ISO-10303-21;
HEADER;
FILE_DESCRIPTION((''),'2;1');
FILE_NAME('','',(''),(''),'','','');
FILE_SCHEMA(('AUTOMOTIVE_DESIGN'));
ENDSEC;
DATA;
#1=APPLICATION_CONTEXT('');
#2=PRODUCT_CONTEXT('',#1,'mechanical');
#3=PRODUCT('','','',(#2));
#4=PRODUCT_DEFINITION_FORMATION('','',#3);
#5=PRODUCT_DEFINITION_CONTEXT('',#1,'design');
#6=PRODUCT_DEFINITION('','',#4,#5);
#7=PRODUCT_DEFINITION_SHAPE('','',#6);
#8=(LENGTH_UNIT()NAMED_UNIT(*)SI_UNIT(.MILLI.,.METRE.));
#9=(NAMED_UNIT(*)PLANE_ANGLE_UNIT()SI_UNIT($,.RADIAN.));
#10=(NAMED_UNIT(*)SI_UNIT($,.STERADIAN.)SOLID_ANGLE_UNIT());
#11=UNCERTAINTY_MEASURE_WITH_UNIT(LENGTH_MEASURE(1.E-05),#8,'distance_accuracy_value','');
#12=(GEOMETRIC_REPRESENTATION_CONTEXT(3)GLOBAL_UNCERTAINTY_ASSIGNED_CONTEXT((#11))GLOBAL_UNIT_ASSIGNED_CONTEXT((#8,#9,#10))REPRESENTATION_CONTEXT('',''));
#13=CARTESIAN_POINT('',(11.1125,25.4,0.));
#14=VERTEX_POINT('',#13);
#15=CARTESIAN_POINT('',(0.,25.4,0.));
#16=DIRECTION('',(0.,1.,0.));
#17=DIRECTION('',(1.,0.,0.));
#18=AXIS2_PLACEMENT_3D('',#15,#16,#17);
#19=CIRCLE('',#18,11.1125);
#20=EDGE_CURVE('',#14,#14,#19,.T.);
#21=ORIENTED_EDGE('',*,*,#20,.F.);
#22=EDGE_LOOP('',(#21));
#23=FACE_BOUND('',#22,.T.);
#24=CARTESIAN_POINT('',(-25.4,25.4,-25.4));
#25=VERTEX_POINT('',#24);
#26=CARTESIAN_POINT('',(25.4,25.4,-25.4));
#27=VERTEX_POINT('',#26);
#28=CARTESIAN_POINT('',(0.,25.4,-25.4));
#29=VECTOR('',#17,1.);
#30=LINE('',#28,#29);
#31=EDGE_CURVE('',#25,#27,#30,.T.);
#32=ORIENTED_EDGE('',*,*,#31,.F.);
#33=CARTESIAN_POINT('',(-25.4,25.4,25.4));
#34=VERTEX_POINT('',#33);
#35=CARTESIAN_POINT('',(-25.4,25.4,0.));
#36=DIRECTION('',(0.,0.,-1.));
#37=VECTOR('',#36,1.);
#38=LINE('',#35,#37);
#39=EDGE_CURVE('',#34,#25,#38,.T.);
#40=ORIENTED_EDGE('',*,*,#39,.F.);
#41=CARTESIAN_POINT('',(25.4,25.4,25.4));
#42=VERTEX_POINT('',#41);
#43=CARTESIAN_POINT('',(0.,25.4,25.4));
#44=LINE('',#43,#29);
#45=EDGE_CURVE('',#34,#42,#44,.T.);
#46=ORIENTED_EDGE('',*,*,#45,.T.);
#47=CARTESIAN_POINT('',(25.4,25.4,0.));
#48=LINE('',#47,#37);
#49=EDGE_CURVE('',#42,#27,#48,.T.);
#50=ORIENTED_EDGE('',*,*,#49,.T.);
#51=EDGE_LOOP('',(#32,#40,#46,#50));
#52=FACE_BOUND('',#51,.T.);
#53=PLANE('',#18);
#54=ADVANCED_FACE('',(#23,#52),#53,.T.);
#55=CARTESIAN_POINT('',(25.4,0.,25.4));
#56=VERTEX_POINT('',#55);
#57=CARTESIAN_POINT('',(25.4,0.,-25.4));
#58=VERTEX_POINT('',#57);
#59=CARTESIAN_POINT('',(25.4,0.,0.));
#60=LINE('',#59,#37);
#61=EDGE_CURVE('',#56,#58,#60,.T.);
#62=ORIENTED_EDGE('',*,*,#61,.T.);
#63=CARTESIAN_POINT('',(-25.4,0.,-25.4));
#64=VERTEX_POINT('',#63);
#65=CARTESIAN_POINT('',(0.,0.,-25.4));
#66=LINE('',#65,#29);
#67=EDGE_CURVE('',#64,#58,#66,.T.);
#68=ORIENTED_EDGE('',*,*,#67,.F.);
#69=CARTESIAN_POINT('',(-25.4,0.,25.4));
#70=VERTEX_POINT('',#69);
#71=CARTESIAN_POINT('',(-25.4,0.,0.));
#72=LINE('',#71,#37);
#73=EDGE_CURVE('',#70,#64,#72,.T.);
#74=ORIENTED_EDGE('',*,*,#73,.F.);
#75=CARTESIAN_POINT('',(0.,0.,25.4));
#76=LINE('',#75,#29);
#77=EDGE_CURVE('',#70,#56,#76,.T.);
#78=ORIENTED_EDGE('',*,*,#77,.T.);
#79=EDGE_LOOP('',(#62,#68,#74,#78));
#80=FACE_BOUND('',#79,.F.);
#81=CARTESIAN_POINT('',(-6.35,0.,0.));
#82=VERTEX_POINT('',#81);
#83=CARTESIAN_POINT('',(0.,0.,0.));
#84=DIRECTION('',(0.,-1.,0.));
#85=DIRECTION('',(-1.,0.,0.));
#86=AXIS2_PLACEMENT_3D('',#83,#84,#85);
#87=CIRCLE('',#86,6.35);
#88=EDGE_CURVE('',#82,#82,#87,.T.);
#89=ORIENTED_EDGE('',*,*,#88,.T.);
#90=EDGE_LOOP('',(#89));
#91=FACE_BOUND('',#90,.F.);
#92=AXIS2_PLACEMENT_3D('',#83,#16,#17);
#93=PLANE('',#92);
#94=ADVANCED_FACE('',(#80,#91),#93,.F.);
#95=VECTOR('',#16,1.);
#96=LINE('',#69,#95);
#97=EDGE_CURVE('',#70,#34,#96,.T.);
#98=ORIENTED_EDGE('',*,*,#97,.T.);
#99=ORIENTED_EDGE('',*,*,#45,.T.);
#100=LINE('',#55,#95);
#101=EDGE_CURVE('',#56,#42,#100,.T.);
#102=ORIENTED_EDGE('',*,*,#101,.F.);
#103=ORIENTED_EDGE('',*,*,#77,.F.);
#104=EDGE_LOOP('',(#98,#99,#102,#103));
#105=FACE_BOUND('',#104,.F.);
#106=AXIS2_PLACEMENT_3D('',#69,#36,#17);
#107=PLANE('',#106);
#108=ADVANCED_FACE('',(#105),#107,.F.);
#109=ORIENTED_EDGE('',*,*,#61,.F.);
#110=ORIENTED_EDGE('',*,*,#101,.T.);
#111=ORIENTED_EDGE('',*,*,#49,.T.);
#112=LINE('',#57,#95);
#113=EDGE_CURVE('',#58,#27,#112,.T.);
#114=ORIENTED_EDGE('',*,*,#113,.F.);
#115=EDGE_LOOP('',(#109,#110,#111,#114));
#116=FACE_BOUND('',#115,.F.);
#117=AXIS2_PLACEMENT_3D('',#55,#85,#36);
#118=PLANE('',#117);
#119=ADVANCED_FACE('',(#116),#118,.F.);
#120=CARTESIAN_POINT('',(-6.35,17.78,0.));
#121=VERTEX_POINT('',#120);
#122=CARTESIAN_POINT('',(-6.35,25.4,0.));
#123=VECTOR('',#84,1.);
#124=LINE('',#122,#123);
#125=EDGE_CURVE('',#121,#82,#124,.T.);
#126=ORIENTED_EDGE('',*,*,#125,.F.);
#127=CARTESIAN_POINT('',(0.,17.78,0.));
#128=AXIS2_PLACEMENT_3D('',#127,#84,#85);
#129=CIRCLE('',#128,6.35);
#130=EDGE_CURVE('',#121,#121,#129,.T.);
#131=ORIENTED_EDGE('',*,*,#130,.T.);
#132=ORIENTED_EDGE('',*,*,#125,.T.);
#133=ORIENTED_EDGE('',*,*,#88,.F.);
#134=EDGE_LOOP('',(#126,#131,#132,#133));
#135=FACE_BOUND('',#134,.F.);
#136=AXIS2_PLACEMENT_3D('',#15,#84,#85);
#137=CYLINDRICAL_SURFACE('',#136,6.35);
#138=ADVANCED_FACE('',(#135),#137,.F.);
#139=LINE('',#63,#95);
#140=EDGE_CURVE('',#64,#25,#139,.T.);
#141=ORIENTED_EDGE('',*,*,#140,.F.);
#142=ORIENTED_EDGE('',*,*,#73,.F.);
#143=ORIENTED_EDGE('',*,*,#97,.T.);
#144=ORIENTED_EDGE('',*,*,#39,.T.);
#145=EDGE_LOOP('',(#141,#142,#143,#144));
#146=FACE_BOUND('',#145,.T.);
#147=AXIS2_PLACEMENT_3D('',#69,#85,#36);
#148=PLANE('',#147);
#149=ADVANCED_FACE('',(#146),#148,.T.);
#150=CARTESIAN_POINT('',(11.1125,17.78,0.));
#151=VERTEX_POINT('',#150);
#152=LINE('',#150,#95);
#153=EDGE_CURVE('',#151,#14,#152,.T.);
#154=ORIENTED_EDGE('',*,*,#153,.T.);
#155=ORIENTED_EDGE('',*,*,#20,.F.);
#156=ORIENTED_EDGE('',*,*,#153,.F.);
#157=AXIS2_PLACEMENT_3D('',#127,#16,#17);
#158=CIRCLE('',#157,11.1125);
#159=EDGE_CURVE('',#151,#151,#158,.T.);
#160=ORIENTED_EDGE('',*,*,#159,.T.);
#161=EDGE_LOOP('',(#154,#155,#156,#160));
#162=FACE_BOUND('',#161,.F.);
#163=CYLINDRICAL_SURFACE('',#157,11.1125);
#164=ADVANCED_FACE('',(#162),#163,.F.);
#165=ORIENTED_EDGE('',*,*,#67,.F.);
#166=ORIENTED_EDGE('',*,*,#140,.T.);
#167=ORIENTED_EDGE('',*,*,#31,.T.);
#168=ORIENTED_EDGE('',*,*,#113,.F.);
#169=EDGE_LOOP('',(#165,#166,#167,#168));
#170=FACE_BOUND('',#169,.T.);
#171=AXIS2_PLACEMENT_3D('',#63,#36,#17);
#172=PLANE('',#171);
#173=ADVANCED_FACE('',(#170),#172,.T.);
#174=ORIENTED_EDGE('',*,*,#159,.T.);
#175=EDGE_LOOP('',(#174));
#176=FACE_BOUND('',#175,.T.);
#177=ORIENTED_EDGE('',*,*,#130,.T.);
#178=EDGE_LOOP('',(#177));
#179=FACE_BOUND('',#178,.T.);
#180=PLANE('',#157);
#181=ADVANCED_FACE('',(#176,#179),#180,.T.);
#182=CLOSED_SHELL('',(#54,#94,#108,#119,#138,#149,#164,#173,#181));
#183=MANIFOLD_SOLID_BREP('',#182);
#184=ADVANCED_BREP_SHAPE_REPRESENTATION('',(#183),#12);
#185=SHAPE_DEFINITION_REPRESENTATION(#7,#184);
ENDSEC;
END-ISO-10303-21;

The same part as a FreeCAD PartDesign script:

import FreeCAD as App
import Part
import Sketcher
Q = App.Units.Quantity


def add_polygon(sketch, points):
    """Adds a closed chain of lines whose ends are joined by coincident constraints."""
    first, n = sketch.GeometryCount, len(points)
    for a, b in zip(points, points[1:] + points[:1]):
        sketch.addGeometry(Part.LineSegment(App.Vector(*a, 0), App.Vector(*b, 0)), False)
    for i in range(n):
        sketch.addConstraint(Sketcher.Constraint("Coincident", first + i, 2, first + (i + 1) % n, 1))

doc = App.newDocument("Part")
body = doc.addObject("PartDesign::Body", "Body")

# Sketch on XZ plane
sketch1 = body.newObject("Sketcher::SketchObject", "Sketch")
sketch1.AttachmentSupport = (doc.getObject("XZ_Plane"), [""])
sketch1.MapMode = "FlatFace"
add_polygon(sketch1, [(-25, -25), (-25, 25), (25, 25), (25, -25)])  # lines 0-3
sketch1.addConstraint(Sketcher.Constraint("Vertical", 0))
sketch1.addConstraint(Sketcher.Constraint("Horizontal", 1))
sketch1.addConstraint(Sketcher.Constraint("Vertical", 2))
sketch1.addConstraint(Sketcher.Constraint("Horizontal", 3))
sketch1.addConstraint(Sketcher.Constraint("Symmetric", 0, 2, 2, 2, -1, 1))
sketch1.addConstraint(Sketcher.Constraint("Equal", 3, 0))
sketch1.addConstraint(Sketcher.Constraint("DistanceX", 1, 1, 1, 2, Q("2 in")))
pad1 = body.newObject("PartDesign::Pad", "Pad")
pad1.Profile = sketch1
pad1.Length = Q("1 in")
pad1.Reversed = True

# Sketch on XZ plane
sketch2 = body.newObject("Sketcher::SketchObject", "Sketch001")
sketch2.AttachmentSupport = (doc.getObject("XZ_Plane"), [""])
sketch2.MapMode = "FlatFace"
sketch2.AttachmentOffset = App.Placement(App.Vector(0, 0, -1 * 25.4), App.Rotation())
sketch2.addGeometry(Part.Circle(App.Vector(0, 0, 0), App.Vector(0, 0, 1), 6), False)
sketch2.addConstraint(Sketcher.Constraint("Coincident", 0, 3, -1, 1))
sketch2.addConstraint(Sketcher.Constraint("Diameter", 0, Q("0.5 in")))
doc.recompute()
hole = body.newObject("PartDesign::Hole", "Hole")
hole.Profile = sketch2
hole.ThreadType = "None"
hole.Diameter = Q("0.5 in")
hole.DepthType = "ThroughAll"
hole.HoleCutType = "Counterbore"
hole.HoleCutDiameter = Q("0.875 in")
hole.HoleCutDepth = Q("0.3 in")
hole.Reversed = True

doc.recompute()
